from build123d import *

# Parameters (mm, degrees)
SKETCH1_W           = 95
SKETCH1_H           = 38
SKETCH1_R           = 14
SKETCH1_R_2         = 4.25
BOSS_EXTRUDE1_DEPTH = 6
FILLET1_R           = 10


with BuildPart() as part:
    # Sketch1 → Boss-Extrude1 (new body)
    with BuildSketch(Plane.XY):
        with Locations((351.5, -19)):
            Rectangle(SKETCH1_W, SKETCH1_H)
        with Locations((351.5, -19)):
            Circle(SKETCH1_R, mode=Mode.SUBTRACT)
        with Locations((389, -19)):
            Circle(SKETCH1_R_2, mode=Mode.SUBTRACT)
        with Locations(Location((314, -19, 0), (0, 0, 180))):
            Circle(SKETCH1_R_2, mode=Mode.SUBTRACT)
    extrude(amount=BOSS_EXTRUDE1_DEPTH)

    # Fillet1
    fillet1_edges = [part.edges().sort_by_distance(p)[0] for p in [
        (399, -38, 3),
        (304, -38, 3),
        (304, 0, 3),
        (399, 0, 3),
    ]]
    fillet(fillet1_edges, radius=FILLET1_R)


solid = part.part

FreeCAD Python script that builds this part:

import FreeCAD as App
import Part
import Sketcher
Q = App.Units.Quantity


def edges_at(feature, points):
    """Names of the edges that pass closest to the given points."""
    edges = feature.Shape.Edges
    near = lambda p: min(range(len(edges)), key=lambda i: edges[i].distToShape(Part.Vertex(*p))[0])
    return sorted({f"Edge{near(p) + 1}" for p in points})


def add_polygon(sketch, points):
    """Adds a closed chain of lines whose ends are joined by coincident constraints."""
    first, n = sketch.GeometryCount, len(points)
    for a, b in zip(points, points[1:] + points[:1]):
        sketch.addGeometry(Part.LineSegment(App.Vector(*a, 0), App.Vector(*b, 0)), False)
    for i in range(n):
        sketch.addConstraint(Sketcher.Constraint("Coincident", first + i, 2, first + (i + 1) % n, 1))

doc = App.newDocument("Part")
body = doc.addObject("PartDesign::Body", "Body")

# Sketch on XY plane
sketch1 = doc.addObject("Sketcher::SketchObject", "Sketch")
body.addObject(sketch1)
sketch1.AttachmentSupport = (doc.XY_Plane, [""])
sketch1.MapMode = "FlatFace"
add_polygon(sketch1, [(304, 0), (304, -38), (399, -38), (399, 0)])  # lines 0-3
sketch1.addGeometry(Part.Circle(App.Vector(314, -19, 0), App.Vector(0, 0, 1), 4.25), False)  # 4
sketch1.addGeometry(Part.Circle(App.Vector(351.5, -19, 0), App.Vector(0, 0, 1), 14), False)  # 5
sketch1.addGeometry(Part.Circle(App.Vector(389, -19, 0), App.Vector(0, 0, 1), 4.25), False)  # 6
sketch1.addConstraint(Sketcher.Constraint("Vertical", 0))
sketch1.addConstraint(Sketcher.Constraint("Horizontal", 1))
sketch1.addConstraint(Sketcher.Constraint("Vertical", 2))
sketch1.addConstraint(Sketcher.Constraint("Horizontal", 3))
sketch1.addConstraint(Sketcher.Constraint("Equal", 4, 6))
sketch1.addConstraint(Sketcher.Constraint("PointOnObject", 2, 2, -1))
sketch1.addConstraint(Sketcher.Constraint("Horizontal", 4, 3, 5, 3))
sketch1.addConstraint(Sketcher.Constraint("Horizontal", 5, 3, 6, 3))
sketch1.addConstraint(Sketcher.Constraint("Diameter", 5, Q("28 mm")))
sketch1.addConstraint(Sketcher.Constraint("Diameter", 4, Q("8.5 mm")))
sketch1.addConstraint(Sketcher.Constraint("DistanceX", 1, 1, 1, 2, Q("95 mm")))
sketch1.addConstraint(Sketcher.Constraint("DistanceY", 0, 2, 0, 1, Q("38 mm")))
sketch1.addConstraint(Sketcher.Constraint("DistanceX", -1, 1, 4, 3, Q("314 mm")))
sketch1.addConstraint(Sketcher.Constraint("DistanceY", 4, 3, -1, 1, Q("19 mm")))
sketch1.addConstraint(Sketcher.Constraint("DistanceX", -1, 1, 6, 3, Q("389 mm")))
sketch1.addConstraint(Sketcher.Constraint("DistanceX", -1, 1, 0, 2, Q("304 mm")))
sketch1.addConstraint(Sketcher.Constraint("DistanceX", -1, 1, 5, 3, Q("351.5 mm")))
pad1 = doc.addObject("PartDesign::Pad", "Pad")
body.addObject(pad1)
pad1.Profile = sketch1
pad1.Length = 6
doc.recompute()

fillet = doc.addObject("PartDesign::Fillet", "Fillet")
body.addObject(fillet)
fillet.Base = (pad1, edges_at(pad1, [
    (399, -38, 3),
    (304, -38, 3),
    (304, 0, 3),
    (399, 0, 3),
]))
fillet.Radius = 10

doc.recompute()
